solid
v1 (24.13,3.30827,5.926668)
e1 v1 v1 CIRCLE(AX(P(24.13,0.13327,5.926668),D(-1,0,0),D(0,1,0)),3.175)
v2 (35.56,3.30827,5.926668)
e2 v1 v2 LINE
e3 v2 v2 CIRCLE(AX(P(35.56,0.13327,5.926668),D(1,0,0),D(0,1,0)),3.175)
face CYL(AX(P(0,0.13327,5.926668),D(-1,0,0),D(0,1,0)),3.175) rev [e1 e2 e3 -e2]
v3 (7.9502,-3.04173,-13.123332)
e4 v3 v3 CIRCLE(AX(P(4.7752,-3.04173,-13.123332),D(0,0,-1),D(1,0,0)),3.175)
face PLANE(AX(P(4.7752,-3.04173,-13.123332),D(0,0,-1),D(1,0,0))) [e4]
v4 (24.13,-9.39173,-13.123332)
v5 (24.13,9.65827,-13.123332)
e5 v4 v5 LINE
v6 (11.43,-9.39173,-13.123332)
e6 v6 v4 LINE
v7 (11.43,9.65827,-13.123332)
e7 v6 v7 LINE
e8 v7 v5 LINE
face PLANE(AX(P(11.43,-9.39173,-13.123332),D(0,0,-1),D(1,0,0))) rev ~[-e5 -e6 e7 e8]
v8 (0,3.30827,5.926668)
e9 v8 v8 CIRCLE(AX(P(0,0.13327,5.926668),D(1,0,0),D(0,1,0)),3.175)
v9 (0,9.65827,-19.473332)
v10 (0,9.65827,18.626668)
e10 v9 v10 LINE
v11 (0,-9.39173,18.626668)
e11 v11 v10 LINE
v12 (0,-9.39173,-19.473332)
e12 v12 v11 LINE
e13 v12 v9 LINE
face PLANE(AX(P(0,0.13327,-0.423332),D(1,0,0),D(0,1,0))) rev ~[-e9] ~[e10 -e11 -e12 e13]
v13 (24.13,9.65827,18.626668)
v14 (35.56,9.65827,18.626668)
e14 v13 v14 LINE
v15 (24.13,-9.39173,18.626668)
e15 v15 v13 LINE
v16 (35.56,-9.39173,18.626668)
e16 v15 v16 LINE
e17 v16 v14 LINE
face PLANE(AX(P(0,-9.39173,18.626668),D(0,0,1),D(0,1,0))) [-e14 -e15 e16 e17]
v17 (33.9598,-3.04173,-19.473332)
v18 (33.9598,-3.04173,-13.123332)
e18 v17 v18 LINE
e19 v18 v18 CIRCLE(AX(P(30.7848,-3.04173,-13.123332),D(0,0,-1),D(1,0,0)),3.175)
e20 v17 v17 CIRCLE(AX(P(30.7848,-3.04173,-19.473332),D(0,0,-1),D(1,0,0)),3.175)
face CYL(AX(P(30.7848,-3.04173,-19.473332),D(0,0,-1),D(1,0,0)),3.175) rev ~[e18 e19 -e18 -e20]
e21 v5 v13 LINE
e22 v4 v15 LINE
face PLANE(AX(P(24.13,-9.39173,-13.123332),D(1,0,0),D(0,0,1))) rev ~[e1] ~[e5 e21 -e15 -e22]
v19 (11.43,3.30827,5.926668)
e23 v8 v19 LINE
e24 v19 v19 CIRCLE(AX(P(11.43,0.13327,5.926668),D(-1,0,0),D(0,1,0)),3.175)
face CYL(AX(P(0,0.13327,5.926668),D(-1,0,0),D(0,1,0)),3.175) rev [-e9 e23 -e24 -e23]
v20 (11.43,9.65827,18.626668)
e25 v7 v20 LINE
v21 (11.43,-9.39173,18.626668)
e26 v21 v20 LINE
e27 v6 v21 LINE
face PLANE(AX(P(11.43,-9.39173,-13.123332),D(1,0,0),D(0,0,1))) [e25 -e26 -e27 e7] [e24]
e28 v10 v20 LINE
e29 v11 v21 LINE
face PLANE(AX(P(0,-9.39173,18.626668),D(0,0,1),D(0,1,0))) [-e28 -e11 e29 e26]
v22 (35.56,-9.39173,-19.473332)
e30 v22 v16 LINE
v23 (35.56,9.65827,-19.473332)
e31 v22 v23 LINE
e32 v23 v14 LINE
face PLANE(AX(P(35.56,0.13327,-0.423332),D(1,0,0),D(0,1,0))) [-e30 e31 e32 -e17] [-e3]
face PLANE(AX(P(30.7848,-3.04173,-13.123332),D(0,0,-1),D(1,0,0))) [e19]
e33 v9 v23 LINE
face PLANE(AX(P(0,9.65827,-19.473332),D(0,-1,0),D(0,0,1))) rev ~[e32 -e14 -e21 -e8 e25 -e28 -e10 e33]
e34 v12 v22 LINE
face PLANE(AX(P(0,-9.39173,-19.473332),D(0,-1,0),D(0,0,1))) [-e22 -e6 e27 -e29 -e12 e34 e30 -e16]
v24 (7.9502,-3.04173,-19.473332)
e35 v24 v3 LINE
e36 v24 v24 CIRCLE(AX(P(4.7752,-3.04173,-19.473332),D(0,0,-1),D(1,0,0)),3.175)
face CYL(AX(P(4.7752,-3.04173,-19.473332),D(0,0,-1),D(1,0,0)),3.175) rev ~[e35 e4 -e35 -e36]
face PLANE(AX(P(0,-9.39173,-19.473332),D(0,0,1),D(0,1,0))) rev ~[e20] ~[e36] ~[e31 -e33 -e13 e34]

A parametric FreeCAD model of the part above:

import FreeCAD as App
import Part
import Sketcher

V = App.Vector
Q = App.Units.Quantity

doc = App.newDocument("Part")
body = doc.addObject("PartDesign::Body", "Body")

# Sketch on YZ plane
sketch1 = body.newObject("Sketcher::SketchObject", "Sketch")
sketch1.AttachmentSupport = (doc.getObject("YZ_Plane"), [""])
sketch1.MapMode = "FlatFace"
sketch1.addGeometry(Part.LineSegment(V(-9.39173, 18.626668, 0), V(-9.39173, -19.473332, 0)), False)
sketch1.addGeometry(Part.LineSegment(V(-9.39173, -19.473332, 0), V(9.65827, -19.473332, 0)), False)
sketch1.addGeometry(Part.LineSegment(V(9.65827, -19.473332, 0), V(9.65827, 18.626668, 0)), False)
sketch1.addGeometry(Part.LineSegment(V(9.65827, 18.626668, 0), V(-9.39173, 18.626668, 0)), False)
sketch1.addGeometry(Part.Circle(V(0.13327, 5.926668, 0), V(0, 0, 1), 3.175), False)
sketch1.addConstraint(Sketcher.Constraint("Coincident", 0, 2, 1, 1))
sketch1.addConstraint(Sketcher.Constraint("Coincident", 1, 2, 2, 1))
sketch1.addConstraint(Sketcher.Constraint("Coincident", 2, 2, 3, 1))
sketch1.addConstraint(Sketcher.Constraint("Coincident", 3, 2, 0, 1))
sketch1.addConstraint(Sketcher.Constraint("Vertical", 0))
sketch1.addConstraint(Sketcher.Constraint("Horizontal", 1))
sketch1.addConstraint(Sketcher.Constraint("Vertical", 2))
sketch1.addConstraint(Sketcher.Constraint("Horizontal", 3))
sketch1.addConstraint(Sketcher.Constraint("Diameter", 4, Q("0.25 in")))
sketch1.addConstraint(Sketcher.Constraint("DistanceY", 0, 2, 0, 1, Q("1.5 in")))
sketch1.addConstraint(Sketcher.Constraint("DistanceY", 0, 2, 4, 3, Q("1 in")))
sketch1.addConstraint(Sketcher.Constraint("DistanceX", 1, 1, 1, 2, Q("0.75 in")))
sketch1.addConstraint(Sketcher.Constraint("DistanceX", 0, 2, 4, 3, Q("0.375 in")))
sketch1.addConstraint(Sketcher.Constraint("DistanceX", -1, 1, 4, 3, 0.13327))
sketch1.addConstraint(Sketcher.Constraint("DistanceY", -1, 1, 4, 3, 5.926668))
pad1 = body.newObject("PartDesign::Pad", "Pad")
pad1.Profile = sketch1
pad1.Length = Q("1.4 in")

# Sketch on XY plane
sketch2 = body.newObject("Sketcher::SketchObject", "Sketch001")
sketch2.AttachmentSupport = (doc.getObject("XY_Plane"), [""])
sketch2.MapMode = "FlatFace"
sketch2.AttachmentOffset = App.Placement(V(0, 0, -19.473332), App.Rotation())
sketch2.addGeometry(Part.Circle(V(4.7752, -3.04173, 0), V(0, 0, 1), 3.175), False)
sketch2.addGeometry(Part.Circle(V(30.7848, -3.04173, 0), V(0, 0, 1), 3.175), False)
sketch2.addConstraint(Sketcher.Constraint("Equal", 0, 1))
sketch2.addConstraint(Sketcher.Constraint("Horizontal", 0, 3, 1, 3))
sketch2.addConstraint(Sketcher.Constraint("Diameter", 0, Q("0.25 in")))
sketch2.addConstraint(Sketcher.Constraint("DistanceX", -1, 1, 0, 3, Q("0.188 in")))
sketch2.addConstraint(Sketcher.Constraint("DistanceX", -1, 1, 1, 3, Q("1.212 in")))
sketch2.addConstraint(Sketcher.Constraint("DistanceY", 0, 3, -1, 1, 3.04173))
pocket1 = body.newObject("PartDesign::Pocket", "Pocket")
pocket1.Profile = sketch2
pocket1.Length = Q("0.25 in")
pocket1.Reversed = True

# Sketch on XZ plane
sketch3 = body.newObject("Sketcher::SketchObject", "Sketch002")
sketch3.AttachmentSupport = (doc.getObject("XZ_Plane"), [""])
sketch3.MapMode = "FlatFace"
sketch3.AttachmentOffset = App.Placement(V(0, 0, 9.39173), App.Rotation())
sketch3.addGeometry(Part.LineSegment(V(11.43, 18.626668, 0), V(11.43, -13.123332, 0)), False)
sketch3.addGeometry(Part.LineSegment(V(11.43, -13.123332, 0), V(24.13, -13.123332, 0)), False)
sketch3.addGeometry(Part.LineSegment(V(24.13, -13.123332, 0), V(24.13, 18.626668, 0)), False)
sketch3.addGeometry(Part.LineSegment(V(24.13, 18.626668, 0), V(11.43, 18.626668, 0)), False)
sketch3.addConstraint(Sketcher.Constraint("Coincident", 0, 2, 1, 1))
sketch3.addConstraint(Sketcher.Constraint("Coincident", 1, 2, 2, 1))
sketch3.addConstraint(Sketcher.Constraint("Coincident", 2, 2, 3, 1))
sketch3.addConstraint(Sketcher.Constraint("Coincident", 3, 2, 0, 1))
sketch3.addConstraint(Sketcher.Constraint("Vertical", 0))
sketch3.addConstraint(Sketcher.Constraint("Horizontal", 1))
sketch3.addConstraint(Sketcher.Constraint("Vertical", 2))
sketch3.addConstraint(Sketcher.Constraint("Horizontal", 3))
sketch3.addConstraint(Sketcher.Constraint("DistanceX", 1, 1, 1, 2, Q("0.5 in")))
sketch3.addConstraint(Sketcher.Constraint("DistanceY", 0, 2, 0, 1, Q("1.25 in")))
sketch3.addConstraint(Sketcher.Constraint("DistanceX", -1, 1, 0, 2, Q("0.45 in")))
sketch3.addConstraint(Sketcher.Constraint("DistanceY", 0, 2, -1, 1, 13.123332))
pocket2 = body.newObject("PartDesign::Pocket", "Pocket001")
pocket2.Profile = sketch3
pocket2.Length = Q("1.4 in")

doc.recompute()
